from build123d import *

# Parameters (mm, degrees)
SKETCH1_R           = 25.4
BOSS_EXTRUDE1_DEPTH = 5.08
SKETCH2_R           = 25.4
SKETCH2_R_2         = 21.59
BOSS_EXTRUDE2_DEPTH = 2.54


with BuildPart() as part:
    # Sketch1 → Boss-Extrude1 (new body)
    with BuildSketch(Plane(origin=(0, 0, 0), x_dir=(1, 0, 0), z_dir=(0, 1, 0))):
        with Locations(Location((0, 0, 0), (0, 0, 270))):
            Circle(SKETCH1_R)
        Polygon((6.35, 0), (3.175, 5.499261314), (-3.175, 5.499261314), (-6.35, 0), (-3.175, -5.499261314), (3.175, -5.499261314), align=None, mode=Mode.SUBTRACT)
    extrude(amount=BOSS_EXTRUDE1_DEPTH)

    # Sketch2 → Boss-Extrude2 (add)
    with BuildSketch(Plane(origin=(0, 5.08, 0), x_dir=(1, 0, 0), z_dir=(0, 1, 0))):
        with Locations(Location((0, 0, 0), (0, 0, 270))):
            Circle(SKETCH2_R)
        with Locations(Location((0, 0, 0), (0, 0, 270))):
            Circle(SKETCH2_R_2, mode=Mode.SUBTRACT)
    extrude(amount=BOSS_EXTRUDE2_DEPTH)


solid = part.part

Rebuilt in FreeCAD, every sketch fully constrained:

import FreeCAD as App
import Part
import Sketcher

V = App.Vector
Q = App.Units.Quantity

doc = App.newDocument("Part")
params = doc.addObject("Spreadsheet::Sheet", "Params")
for row, (alias, value) in enumerate([
    ("sketch1_diameter", "2 in"),
    ("sketch1_width", "0.25 in"),
    ("pad1_length", "0.2 in"),
    ("sketch2_diameter", "2 in"),
    ("sketch2_diameter2", "1.7 in"),
    ("pad2_length", "0.1 in"),
], start=1):
    params.set(f"A{row}", alias)
    params.set(f"B{row}", "=" + value)
    params.setAlias(f"B{row}", alias)

body = doc.addObject("PartDesign::Body", "Body")

# Sketch on XZ plane
sketch1 = doc.addObject("Sketcher::SketchObject", "Sketch")
body.addObject(sketch1)
sketch1.AttachmentSupport = (doc.XZ_Plane, [""])
sketch1.MapMode = "FlatFace"
sketch1.addGeometry([
    Part.Circle(V(0, 0, 0), V(0, 0, 1), 25),  # 0
    Part.LineSegment(V(3, -5, 0), V(6, 0, 0)),  # 1
    Part.LineSegment(V(6, 0, 0), V(3, 5, 0)),  # 2
    Part.LineSegment(V(3, 5, 0), V(-3, 5, 0)),  # 3
    Part.LineSegment(V(-3, 5, 0), V(-6, 0, 0)),  # 4
    Part.LineSegment(V(-6, 0, 0), V(-3, -5, 0)),  # 5
    Part.LineSegment(V(-3, -5, 0), V(3, -5, 0)),  # 6
], False)
sketch1.addConstraint([
    Sketcher.Constraint("Coincident", 1, 2, 2, 1),
    Sketcher.Constraint("Coincident", 2, 2, 3, 1),
    Sketcher.Constraint("Coincident", 3, 2, 4, 1),
    Sketcher.Constraint("Coincident", 4, 2, 5, 1),
    Sketcher.Constraint("Coincident", 5, 2, 6, 1),
    Sketcher.Constraint("Coincident", 6, 2, 1, 1),
    Sketcher.Constraint("Horizontal", 3),
    Sketcher.Constraint("Horizontal", 6),
    Sketcher.Constraint("Coincident", 0, 3, -1, 1),
    Sketcher.Constraint("Symmetric", 1, 2, 4, 2, -1, 1),
    Sketcher.Constraint("Symmetric", 2, 2, 5, 2, -1, 1),
    Sketcher.Constraint("PointOnObject", 1, 2, -1),
    Sketcher.Constraint("Parallel", 1, 4),
    Sketcher.Constraint("Vertical", 3, 2, 5, 2),
    Sketcher.Constraint("Diameter", 0, Q("2 in")),
    Sketcher.Constraint("Angle", 1, Q("60 deg")),
    Sketcher.Constraint("DistanceX", 3, 2, 3, 1, Q("0.25 in")),
    Sketcher.Constraint("DistanceX", 4, 2, 1, 2, Q("0.5 in")),
])
sketch1.setExpression("Constraints[14]", "Params.sketch1_diameter")
sketch1.setExpression("Constraints[16]", "Params.sketch1_width")
pad1 = doc.addObject("PartDesign::Pad", "Pad")
body.addObject(pad1)
pad1.Profile = sketch1
pad1.setExpression("Length", "Params.pad1_length")
pad1.Reversed = True

# Sketch on XZ plane
sketch2 = doc.addObject("Sketcher::SketchObject", "Sketch001")
body.addObject(sketch2)
sketch2.AttachmentSupport = (doc.XZ_Plane, [""])
sketch2.MapMode = "FlatFace"
sketch2.AttachmentOffset = App.Placement(V(0, 0, -0.2 * 25.4), App.Rotation())
sketch2.addGeometry([
    Part.Circle(V(0, 0, 0), V(0, 0, 1), 25),
    Part.Circle(V(0, 0, 0), V(0, 0, 1), 22),
], False)
sketch2.addConstraint([
    Sketcher.Constraint("Coincident", 0, 3, -1, 1),
    Sketcher.Constraint("Coincident", 1, 3, -1, 1),
    Sketcher.Constraint("Diameter", 0, Q("2 in")),
    Sketcher.Constraint("Diameter", 1, Q("1.7 in")),
])
sketch2.setExpression("Constraints[2]", "Params.sketch2_diameter")
sketch2.setExpression("Constraints[3]", "Params.sketch2_diameter2")
pad2 = doc.addObject("PartDesign::Pad", "Pad001")
body.addObject(pad2)
pad2.Profile = sketch2
pad2.setExpression("Length", "Params.pad2_length")
pad2.Reversed = True

doc.recompute()
